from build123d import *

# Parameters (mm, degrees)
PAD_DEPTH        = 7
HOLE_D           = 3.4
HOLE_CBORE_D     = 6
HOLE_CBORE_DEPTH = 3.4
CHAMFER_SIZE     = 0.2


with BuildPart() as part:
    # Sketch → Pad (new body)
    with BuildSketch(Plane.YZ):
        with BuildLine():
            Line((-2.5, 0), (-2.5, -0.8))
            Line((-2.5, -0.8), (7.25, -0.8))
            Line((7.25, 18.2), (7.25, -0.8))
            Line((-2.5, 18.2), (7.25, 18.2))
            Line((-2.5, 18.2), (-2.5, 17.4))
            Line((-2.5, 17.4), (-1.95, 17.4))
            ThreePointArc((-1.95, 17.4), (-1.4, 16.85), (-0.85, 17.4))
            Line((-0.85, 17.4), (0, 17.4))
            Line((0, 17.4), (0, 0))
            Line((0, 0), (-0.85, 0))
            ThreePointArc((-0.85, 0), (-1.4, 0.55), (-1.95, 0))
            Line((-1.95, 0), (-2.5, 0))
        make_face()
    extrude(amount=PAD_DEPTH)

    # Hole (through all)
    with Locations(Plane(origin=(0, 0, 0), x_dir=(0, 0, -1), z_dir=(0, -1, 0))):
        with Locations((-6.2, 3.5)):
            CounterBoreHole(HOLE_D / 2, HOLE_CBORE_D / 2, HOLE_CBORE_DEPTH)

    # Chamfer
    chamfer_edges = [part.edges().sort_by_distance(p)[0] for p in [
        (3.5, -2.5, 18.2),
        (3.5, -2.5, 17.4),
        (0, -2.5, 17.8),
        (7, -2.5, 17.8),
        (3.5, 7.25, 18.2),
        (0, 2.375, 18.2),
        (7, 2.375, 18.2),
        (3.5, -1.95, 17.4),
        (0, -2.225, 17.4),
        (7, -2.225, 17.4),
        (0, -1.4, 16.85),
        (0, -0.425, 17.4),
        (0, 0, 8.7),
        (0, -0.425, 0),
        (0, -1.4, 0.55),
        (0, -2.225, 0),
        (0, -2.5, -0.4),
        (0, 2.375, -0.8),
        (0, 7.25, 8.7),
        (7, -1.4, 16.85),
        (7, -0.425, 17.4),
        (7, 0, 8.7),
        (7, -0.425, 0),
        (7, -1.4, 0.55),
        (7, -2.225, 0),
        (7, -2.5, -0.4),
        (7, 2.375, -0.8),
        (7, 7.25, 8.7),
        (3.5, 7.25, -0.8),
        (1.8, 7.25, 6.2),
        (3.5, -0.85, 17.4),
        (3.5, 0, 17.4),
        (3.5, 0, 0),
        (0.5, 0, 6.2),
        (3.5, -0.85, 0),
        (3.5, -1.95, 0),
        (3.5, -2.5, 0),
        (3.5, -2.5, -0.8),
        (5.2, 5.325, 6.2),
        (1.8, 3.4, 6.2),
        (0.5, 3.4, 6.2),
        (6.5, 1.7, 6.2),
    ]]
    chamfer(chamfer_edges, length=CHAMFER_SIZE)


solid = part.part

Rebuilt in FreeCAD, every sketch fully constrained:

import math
import FreeCAD as App
import Part
import Sketcher

V = App.Vector
Q = App.Units.Quantity

doc = App.newDocument("Part")
body = doc.addObject("PartDesign::Body", "Body")

sketch1 = body.newObject("Sketcher::SketchObject", "Sketch")
sketch1.AttachmentSupport = (doc.getObject("YZ_Plane"), [""])
sketch1.MapMode = "FlatFace"
sketch1.addGeometry(Part.LineSegment(V(-2.5, 0, 0), V(-2.5, -0.8, 0)), False)
sketch1.addGeometry(Part.LineSegment(V(-2.5, -0.8, 0), V(7.25, -0.8, 0)), False)
sketch1.addGeometry(Part.LineSegment(V(7.25, -0.8, 0), V(7.25, 18.2, 0)), False)
sketch1.addGeometry(Part.LineSegment(V(7.25, 18.2, 0), V(-2.5, 18.2, 0)), False)
sketch1.addGeometry(Part.LineSegment(V(-2.5, 18.2, 0), V(-2.5, 17.4, 0)), False)
sketch1.addGeometry(Part.LineSegment(V(-2.5, 17.4, 0), V(-1.95, 17.4, 0)), False)
sketch1.addGeometry(Part.ArcOfCircle(Part.Circle(V(-1.4, 17.4, 0), V(0, 0, 1), 0.55), math.radians(180), math.radians(360)), False)
sketch1.addGeometry(Part.LineSegment(V(-0.85, 17.4, 0), V(0, 17.4, 0)), False)
sketch1.addGeometry(Part.LineSegment(V(0, 17.4, 0), V(0, 0, 0)), False)
sketch1.addGeometry(Part.LineSegment(V(0, 0, 0), V(-0.85, 0, 0)), False)
sketch1.addGeometry(Part.ArcOfCircle(Part.Circle(V(-1.4, 0, 0), V(0, 0, 1), 0.55), math.radians(0), math.radians(180)), False)
sketch1.addGeometry(Part.LineSegment(V(-1.95, 0, 0), V(-2.5, 0, 0)), False)
sketch1.addConstraint(Sketcher.Constraint("Coincident", 0, 2, 1, 1))
sketch1.addConstraint(Sketcher.Constraint("Coincident", 1, 2, 2, 1))
sketch1.addConstraint(Sketcher.Constraint("Coincident", 2, 2, 3, 1))
sketch1.addConstraint(Sketcher.Constraint("Coincident", 3, 2, 4, 1))
sketch1.addConstraint(Sketcher.Constraint("Coincident", 4, 2, 5, 1))
sketch1.addConstraint(Sketcher.Constraint("Coincident", 5, 2, 6, 1))
sketch1.addConstraint(Sketcher.Constraint("Coincident", 6, 2, 7, 1))
sketch1.addConstraint(Sketcher.Constraint("Coincident", 7, 2, 8, 1))
sketch1.addConstraint(Sketcher.Constraint("Coincident", 8, 2, 9, 1))
sketch1.addConstraint(Sketcher.Constraint("Coincident", 9, 2, 10, 1))
sketch1.addConstraint(Sketcher.Constraint("Coincident", 10, 2, 11, 1))
sketch1.addConstraint(Sketcher.Constraint("Coincident", 11, 2, 0, 1))
sketch1.addConstraint(Sketcher.Constraint("Vertical", 0))
sketch1.addConstraint(Sketcher.Constraint("Horizontal", 1))
sketch1.addConstraint(Sketcher.Constraint("Vertical", 2))
sketch1.addConstraint(Sketcher.Constraint("Horizontal", 3))
sketch1.addConstraint(Sketcher.Constraint("Vertical", 4))
sketch1.addConstraint(Sketcher.Constraint("Horizontal", 5))
sketch1.addConstraint(Sketcher.Constraint("Horizontal", 7))
sketch1.addConstraint(Sketcher.Constraint("Vertical", 8))
sketch1.addConstraint(Sketcher.Constraint("Horizontal", 9))
sketch1.addConstraint(Sketcher.Constraint("Horizontal", 11))
sketch1.addConstraint(Sketcher.Constraint("Coincident", 8, 2, -1, 1))
sketch1.addConstraint(Sketcher.Constraint("Equal", 6, 10))
sketch1.addConstraint(Sketcher.Constraint("PointOnObject", 10, 3, -1))
sketch1.addConstraint(Sketcher.Constraint("PointOnObject", 10, 2, -1))
sketch1.addConstraint(Sketcher.Constraint("Horizontal", 6, 3, 4, 2))
sketch1.addConstraint(Sketcher.Constraint("Horizontal", 5, 2, 6, 2))
sketch1.addConstraint(Sketcher.Constraint("Vertical", 6, 3, 10, 3))
sketch1.addConstraint(Sketcher.Constraint("Vertical", 0, 2, 3, 2))
sketch1.addConstraint(Sketcher.Constraint("Equal", 0, 4))
sketch1.addConstraint(Sketcher.Constraint("DistanceY", 2, 1, 2, 2, Q("19 mm")))
sketch1.addConstraint(Sketcher.Constraint("Radius", 6, Q("0.55 mm")))
sketch1.addConstraint(Sketcher.Constraint("DistanceY", 0, 2, 0, 1, Q("0.8 mm")))
sketch1.addConstraint(Sketcher.Constraint("DistanceX", 1, 1, 1, 2, Q("9.75 mm")))
sketch1.addConstraint(Sketcher.Constraint("DistanceX", 5, 1, 5, 2, Q("0.55 mm")))
sketch1.addConstraint(Sketcher.Constraint("DistanceX", 7, 1, 7, 2, Q("0.85 mm")))
pad1 = body.newObject("PartDesign::Pad", "Pad")
pad1.Profile = sketch1
pad1.Length = 7

sketch2 = body.newObject("Sketcher::SketchObject", "Sketch001")
sketch2.AttachmentSupport = (doc.getObject("XZ_Plane"), [""])
sketch2.MapMode = "FlatFace"
sketch2.addGeometry(Part.Circle(V(3.5, 6.2, 0), V(0, 0, 1), 1.7), False)
sketch2.addConstraint(Sketcher.Constraint("Diameter", 0, Q("3.4 mm")))
sketch2.addConstraint(Sketcher.Constraint("DistanceX", -1, 1, 0, 3, Q("3.5 mm")))
sketch2.addConstraint(Sketcher.Constraint("DistanceY", -1, 1, 0, 3, Q("6.2 mm")))
doc.recompute()
hole = body.newObject("PartDesign::Hole", "Hole")
hole.Profile = sketch2
hole.ThreadType = "None"
hole.Diameter = 3.4
hole.DepthType = "ThroughAll"
hole.HoleCutType = "Counterbore"
hole.HoleCutDiameter = 6
hole.HoleCutDepth = 3.4
doc.recompute()

chamfer = body.newObject("PartDesign::Chamfer", "Chamfer")
chamfer.Base = (hole, ["Edge1"])
chamfer.UseAllEdges = True
chamfer.Size = 0.2

doc.recompute()
